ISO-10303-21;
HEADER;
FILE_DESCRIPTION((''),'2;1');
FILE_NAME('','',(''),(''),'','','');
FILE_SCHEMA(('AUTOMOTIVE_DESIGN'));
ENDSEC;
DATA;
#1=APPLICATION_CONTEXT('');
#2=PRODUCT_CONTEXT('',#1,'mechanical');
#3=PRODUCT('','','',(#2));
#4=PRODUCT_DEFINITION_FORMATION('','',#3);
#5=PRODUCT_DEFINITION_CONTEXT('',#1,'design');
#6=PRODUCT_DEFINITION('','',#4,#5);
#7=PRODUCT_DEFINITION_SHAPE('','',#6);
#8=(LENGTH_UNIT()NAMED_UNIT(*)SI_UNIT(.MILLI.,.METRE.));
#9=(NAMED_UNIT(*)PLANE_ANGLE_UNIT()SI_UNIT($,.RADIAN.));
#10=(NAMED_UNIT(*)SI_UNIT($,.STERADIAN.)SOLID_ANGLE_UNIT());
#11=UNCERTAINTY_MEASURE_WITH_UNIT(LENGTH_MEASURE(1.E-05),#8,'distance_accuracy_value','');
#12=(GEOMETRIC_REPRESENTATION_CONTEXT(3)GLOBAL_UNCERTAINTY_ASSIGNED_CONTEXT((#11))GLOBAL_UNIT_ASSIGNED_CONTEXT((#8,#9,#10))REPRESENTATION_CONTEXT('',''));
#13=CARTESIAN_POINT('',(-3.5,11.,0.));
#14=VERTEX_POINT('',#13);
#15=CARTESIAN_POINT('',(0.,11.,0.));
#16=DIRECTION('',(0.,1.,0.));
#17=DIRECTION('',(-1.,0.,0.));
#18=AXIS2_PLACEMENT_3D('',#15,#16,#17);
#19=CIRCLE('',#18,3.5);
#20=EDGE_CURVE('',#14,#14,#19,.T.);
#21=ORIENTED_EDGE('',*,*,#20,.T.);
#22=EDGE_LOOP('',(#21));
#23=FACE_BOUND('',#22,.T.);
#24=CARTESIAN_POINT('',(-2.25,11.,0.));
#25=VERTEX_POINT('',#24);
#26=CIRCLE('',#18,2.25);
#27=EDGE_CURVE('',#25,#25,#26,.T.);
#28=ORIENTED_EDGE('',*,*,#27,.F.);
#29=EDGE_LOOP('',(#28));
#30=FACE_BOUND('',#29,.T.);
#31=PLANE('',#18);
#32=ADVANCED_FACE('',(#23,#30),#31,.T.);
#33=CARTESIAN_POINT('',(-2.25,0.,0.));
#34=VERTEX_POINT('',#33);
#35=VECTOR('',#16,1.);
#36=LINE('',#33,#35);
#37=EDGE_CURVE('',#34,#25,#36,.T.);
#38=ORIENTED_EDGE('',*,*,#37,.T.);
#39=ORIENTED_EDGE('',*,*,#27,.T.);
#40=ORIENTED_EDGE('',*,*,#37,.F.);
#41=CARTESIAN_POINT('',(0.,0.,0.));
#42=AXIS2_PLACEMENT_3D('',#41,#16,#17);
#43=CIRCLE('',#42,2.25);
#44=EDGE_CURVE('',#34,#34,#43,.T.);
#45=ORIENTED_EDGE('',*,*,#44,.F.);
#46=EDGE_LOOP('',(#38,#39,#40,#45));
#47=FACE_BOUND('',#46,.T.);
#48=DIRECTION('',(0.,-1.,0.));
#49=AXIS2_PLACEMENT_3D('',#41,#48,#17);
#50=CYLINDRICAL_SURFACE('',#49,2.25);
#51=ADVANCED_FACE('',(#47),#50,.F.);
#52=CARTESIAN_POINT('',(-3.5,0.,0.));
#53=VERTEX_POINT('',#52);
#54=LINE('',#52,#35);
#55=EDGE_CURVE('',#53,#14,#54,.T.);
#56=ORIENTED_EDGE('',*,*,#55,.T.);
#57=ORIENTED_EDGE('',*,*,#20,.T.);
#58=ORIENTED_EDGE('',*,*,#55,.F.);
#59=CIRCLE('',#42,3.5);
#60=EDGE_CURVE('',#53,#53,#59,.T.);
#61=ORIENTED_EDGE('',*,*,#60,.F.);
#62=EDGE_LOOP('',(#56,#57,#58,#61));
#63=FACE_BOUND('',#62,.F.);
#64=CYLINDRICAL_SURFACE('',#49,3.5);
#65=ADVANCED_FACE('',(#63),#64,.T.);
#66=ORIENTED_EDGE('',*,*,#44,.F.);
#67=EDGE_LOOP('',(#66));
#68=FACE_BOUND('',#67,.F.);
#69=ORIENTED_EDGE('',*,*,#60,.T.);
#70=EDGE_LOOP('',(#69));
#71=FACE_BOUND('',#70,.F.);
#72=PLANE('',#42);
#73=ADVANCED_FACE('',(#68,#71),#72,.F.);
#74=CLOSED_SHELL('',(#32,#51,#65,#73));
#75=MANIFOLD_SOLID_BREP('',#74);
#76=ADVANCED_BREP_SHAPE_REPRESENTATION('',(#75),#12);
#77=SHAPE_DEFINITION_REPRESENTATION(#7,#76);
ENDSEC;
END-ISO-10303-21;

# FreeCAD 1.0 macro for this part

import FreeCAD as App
import Part
import Sketcher

V = App.Vector
Q = App.Units.Quantity

doc = App.newDocument("Part")
body = doc.addObject("PartDesign::Body", "Body")

# Sketch on XZ plane
sketch1 = body.newObject("Sketcher::SketchObject", "Sketch")
sketch1.AttachmentSupport = (doc.getObject("XZ_Plane"), [""])
sketch1.MapMode = "FlatFace"
sketch1.addGeometry([
    Part.Circle(V(0, 0, 0), V(0, 0, 1), 3.5),
    Part.Circle(V(0, 0, 0), V(0, 0, 1), 2.2),
], False)
sketch1.addConstraint([
    Sketcher.Constraint("Coincident", 0, 3, -1, 1),
    Sketcher.Constraint("Coincident", 1, 3, -1, 1),
    Sketcher.Constraint("Diameter", 0, Q("7 mm")),
    Sketcher.Constraint("Diameter", 1, Q("4.5 mm")),
])
pad1 = body.newObject("PartDesign::Pad", "Pad")
pad1.Profile = sketch1
pad1.Length = 11
pad1.Reversed = True

doc.recompute()
